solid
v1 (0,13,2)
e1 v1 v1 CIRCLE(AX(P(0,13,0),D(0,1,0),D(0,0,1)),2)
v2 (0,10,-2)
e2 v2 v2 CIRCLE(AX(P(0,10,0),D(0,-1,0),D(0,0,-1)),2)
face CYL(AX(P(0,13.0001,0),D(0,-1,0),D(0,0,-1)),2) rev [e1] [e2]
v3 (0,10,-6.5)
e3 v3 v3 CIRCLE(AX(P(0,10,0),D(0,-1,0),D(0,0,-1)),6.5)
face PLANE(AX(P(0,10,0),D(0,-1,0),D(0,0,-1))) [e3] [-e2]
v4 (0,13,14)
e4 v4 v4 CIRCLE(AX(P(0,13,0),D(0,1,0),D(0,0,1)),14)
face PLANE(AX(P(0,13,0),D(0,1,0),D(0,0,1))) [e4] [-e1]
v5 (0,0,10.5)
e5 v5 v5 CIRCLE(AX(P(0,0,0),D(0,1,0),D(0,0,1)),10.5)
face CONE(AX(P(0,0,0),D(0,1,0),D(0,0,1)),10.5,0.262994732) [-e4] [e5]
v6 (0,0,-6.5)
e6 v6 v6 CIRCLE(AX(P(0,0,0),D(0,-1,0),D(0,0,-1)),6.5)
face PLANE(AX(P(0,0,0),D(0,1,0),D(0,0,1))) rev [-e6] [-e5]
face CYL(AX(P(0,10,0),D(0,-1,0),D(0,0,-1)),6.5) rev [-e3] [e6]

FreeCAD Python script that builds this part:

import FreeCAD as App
import Part
import Sketcher

doc = App.newDocument("Part")
body = doc.addObject("PartDesign::Body", "Body")

# Sketch on XZ plane
sketch1 = body.newObject("Sketcher::SketchObject", "Sketch")
sketch1.AttachmentSupport = (doc.getObject("XZ_Plane"), [""])
sketch1.MapMode = "FlatFace"
sketch1.AttachmentOffset = App.Placement(App.Vector(0, 0, -13), App.Rotation())
sketch1.addGeometry(Part.Circle(App.Vector(0, 0, 0), App.Vector(0, 0, 1), 14), False)
sketch1.addConstraint([
    Sketcher.Constraint("Coincident", 0, 3, -1, 1),
    Sketcher.Constraint("Diameter", 0, 28.0),
])

# Sketch on XZ plane
sketch2 = body.newObject("Sketcher::SketchObject", "Sketch001")
sketch2.AttachmentSupport = (doc.getObject("XZ_Plane"), [""])
sketch2.MapMode = "FlatFace"
sketch2.addGeometry(Part.Circle(App.Vector(0, 0, 0), App.Vector(0, 0, 1), 10), False)
sketch2.addConstraint([
    Sketcher.Constraint("Coincident", 0, 3, -1, 1),
    Sketcher.Constraint("Diameter", 0, 21.0),
])

additiveloft = body.newObject("PartDesign::AdditiveLoft", "AdditiveLoft")
additiveloft.Profile = sketch1
additiveloft.Sections = [sketch2]

# Sketch on XZ plane
sketch3 = body.newObject("Sketcher::SketchObject", "Sketch002")
sketch3.AttachmentSupport = (doc.getObject("XZ_Plane"), [""])
sketch3.MapMode = "FlatFace"
sketch3.addGeometry(Part.Circle(App.Vector(0, 0, 0), App.Vector(0, 0, 1), 6), False)
sketch3.addConstraint([
    Sketcher.Constraint("Coincident", 0, 3, -1, 1),
    Sketcher.Constraint("Diameter", 0, 13.0),
])
pocket1 = body.newObject("PartDesign::Pocket", "Pocket")
pocket1.Profile = sketch3
pocket1.Length = 10

# Sketch on XZ plane
sketch4 = body.newObject("Sketcher::SketchObject", "Sketch003")
sketch4.AttachmentSupport = (doc.getObject("XZ_Plane"), [""])
sketch4.MapMode = "FlatFace"
sketch4.AttachmentOffset = App.Placement(App.Vector(0, 0, -10), App.Rotation())
sketch4.addGeometry(Part.Circle(App.Vector(0, 0, 0), App.Vector(0, 0, 1), 2), False)
sketch4.addConstraint([
    Sketcher.Constraint("Coincident", 0, 3, -1, 1),
    Sketcher.Constraint("Diameter", 0, 4.0),
])
pocket2 = body.newObject("PartDesign::Pocket", "Pocket001")
pocket2.Profile = sketch4
pocket2.Type = "ThroughAll"

doc.recompute()
